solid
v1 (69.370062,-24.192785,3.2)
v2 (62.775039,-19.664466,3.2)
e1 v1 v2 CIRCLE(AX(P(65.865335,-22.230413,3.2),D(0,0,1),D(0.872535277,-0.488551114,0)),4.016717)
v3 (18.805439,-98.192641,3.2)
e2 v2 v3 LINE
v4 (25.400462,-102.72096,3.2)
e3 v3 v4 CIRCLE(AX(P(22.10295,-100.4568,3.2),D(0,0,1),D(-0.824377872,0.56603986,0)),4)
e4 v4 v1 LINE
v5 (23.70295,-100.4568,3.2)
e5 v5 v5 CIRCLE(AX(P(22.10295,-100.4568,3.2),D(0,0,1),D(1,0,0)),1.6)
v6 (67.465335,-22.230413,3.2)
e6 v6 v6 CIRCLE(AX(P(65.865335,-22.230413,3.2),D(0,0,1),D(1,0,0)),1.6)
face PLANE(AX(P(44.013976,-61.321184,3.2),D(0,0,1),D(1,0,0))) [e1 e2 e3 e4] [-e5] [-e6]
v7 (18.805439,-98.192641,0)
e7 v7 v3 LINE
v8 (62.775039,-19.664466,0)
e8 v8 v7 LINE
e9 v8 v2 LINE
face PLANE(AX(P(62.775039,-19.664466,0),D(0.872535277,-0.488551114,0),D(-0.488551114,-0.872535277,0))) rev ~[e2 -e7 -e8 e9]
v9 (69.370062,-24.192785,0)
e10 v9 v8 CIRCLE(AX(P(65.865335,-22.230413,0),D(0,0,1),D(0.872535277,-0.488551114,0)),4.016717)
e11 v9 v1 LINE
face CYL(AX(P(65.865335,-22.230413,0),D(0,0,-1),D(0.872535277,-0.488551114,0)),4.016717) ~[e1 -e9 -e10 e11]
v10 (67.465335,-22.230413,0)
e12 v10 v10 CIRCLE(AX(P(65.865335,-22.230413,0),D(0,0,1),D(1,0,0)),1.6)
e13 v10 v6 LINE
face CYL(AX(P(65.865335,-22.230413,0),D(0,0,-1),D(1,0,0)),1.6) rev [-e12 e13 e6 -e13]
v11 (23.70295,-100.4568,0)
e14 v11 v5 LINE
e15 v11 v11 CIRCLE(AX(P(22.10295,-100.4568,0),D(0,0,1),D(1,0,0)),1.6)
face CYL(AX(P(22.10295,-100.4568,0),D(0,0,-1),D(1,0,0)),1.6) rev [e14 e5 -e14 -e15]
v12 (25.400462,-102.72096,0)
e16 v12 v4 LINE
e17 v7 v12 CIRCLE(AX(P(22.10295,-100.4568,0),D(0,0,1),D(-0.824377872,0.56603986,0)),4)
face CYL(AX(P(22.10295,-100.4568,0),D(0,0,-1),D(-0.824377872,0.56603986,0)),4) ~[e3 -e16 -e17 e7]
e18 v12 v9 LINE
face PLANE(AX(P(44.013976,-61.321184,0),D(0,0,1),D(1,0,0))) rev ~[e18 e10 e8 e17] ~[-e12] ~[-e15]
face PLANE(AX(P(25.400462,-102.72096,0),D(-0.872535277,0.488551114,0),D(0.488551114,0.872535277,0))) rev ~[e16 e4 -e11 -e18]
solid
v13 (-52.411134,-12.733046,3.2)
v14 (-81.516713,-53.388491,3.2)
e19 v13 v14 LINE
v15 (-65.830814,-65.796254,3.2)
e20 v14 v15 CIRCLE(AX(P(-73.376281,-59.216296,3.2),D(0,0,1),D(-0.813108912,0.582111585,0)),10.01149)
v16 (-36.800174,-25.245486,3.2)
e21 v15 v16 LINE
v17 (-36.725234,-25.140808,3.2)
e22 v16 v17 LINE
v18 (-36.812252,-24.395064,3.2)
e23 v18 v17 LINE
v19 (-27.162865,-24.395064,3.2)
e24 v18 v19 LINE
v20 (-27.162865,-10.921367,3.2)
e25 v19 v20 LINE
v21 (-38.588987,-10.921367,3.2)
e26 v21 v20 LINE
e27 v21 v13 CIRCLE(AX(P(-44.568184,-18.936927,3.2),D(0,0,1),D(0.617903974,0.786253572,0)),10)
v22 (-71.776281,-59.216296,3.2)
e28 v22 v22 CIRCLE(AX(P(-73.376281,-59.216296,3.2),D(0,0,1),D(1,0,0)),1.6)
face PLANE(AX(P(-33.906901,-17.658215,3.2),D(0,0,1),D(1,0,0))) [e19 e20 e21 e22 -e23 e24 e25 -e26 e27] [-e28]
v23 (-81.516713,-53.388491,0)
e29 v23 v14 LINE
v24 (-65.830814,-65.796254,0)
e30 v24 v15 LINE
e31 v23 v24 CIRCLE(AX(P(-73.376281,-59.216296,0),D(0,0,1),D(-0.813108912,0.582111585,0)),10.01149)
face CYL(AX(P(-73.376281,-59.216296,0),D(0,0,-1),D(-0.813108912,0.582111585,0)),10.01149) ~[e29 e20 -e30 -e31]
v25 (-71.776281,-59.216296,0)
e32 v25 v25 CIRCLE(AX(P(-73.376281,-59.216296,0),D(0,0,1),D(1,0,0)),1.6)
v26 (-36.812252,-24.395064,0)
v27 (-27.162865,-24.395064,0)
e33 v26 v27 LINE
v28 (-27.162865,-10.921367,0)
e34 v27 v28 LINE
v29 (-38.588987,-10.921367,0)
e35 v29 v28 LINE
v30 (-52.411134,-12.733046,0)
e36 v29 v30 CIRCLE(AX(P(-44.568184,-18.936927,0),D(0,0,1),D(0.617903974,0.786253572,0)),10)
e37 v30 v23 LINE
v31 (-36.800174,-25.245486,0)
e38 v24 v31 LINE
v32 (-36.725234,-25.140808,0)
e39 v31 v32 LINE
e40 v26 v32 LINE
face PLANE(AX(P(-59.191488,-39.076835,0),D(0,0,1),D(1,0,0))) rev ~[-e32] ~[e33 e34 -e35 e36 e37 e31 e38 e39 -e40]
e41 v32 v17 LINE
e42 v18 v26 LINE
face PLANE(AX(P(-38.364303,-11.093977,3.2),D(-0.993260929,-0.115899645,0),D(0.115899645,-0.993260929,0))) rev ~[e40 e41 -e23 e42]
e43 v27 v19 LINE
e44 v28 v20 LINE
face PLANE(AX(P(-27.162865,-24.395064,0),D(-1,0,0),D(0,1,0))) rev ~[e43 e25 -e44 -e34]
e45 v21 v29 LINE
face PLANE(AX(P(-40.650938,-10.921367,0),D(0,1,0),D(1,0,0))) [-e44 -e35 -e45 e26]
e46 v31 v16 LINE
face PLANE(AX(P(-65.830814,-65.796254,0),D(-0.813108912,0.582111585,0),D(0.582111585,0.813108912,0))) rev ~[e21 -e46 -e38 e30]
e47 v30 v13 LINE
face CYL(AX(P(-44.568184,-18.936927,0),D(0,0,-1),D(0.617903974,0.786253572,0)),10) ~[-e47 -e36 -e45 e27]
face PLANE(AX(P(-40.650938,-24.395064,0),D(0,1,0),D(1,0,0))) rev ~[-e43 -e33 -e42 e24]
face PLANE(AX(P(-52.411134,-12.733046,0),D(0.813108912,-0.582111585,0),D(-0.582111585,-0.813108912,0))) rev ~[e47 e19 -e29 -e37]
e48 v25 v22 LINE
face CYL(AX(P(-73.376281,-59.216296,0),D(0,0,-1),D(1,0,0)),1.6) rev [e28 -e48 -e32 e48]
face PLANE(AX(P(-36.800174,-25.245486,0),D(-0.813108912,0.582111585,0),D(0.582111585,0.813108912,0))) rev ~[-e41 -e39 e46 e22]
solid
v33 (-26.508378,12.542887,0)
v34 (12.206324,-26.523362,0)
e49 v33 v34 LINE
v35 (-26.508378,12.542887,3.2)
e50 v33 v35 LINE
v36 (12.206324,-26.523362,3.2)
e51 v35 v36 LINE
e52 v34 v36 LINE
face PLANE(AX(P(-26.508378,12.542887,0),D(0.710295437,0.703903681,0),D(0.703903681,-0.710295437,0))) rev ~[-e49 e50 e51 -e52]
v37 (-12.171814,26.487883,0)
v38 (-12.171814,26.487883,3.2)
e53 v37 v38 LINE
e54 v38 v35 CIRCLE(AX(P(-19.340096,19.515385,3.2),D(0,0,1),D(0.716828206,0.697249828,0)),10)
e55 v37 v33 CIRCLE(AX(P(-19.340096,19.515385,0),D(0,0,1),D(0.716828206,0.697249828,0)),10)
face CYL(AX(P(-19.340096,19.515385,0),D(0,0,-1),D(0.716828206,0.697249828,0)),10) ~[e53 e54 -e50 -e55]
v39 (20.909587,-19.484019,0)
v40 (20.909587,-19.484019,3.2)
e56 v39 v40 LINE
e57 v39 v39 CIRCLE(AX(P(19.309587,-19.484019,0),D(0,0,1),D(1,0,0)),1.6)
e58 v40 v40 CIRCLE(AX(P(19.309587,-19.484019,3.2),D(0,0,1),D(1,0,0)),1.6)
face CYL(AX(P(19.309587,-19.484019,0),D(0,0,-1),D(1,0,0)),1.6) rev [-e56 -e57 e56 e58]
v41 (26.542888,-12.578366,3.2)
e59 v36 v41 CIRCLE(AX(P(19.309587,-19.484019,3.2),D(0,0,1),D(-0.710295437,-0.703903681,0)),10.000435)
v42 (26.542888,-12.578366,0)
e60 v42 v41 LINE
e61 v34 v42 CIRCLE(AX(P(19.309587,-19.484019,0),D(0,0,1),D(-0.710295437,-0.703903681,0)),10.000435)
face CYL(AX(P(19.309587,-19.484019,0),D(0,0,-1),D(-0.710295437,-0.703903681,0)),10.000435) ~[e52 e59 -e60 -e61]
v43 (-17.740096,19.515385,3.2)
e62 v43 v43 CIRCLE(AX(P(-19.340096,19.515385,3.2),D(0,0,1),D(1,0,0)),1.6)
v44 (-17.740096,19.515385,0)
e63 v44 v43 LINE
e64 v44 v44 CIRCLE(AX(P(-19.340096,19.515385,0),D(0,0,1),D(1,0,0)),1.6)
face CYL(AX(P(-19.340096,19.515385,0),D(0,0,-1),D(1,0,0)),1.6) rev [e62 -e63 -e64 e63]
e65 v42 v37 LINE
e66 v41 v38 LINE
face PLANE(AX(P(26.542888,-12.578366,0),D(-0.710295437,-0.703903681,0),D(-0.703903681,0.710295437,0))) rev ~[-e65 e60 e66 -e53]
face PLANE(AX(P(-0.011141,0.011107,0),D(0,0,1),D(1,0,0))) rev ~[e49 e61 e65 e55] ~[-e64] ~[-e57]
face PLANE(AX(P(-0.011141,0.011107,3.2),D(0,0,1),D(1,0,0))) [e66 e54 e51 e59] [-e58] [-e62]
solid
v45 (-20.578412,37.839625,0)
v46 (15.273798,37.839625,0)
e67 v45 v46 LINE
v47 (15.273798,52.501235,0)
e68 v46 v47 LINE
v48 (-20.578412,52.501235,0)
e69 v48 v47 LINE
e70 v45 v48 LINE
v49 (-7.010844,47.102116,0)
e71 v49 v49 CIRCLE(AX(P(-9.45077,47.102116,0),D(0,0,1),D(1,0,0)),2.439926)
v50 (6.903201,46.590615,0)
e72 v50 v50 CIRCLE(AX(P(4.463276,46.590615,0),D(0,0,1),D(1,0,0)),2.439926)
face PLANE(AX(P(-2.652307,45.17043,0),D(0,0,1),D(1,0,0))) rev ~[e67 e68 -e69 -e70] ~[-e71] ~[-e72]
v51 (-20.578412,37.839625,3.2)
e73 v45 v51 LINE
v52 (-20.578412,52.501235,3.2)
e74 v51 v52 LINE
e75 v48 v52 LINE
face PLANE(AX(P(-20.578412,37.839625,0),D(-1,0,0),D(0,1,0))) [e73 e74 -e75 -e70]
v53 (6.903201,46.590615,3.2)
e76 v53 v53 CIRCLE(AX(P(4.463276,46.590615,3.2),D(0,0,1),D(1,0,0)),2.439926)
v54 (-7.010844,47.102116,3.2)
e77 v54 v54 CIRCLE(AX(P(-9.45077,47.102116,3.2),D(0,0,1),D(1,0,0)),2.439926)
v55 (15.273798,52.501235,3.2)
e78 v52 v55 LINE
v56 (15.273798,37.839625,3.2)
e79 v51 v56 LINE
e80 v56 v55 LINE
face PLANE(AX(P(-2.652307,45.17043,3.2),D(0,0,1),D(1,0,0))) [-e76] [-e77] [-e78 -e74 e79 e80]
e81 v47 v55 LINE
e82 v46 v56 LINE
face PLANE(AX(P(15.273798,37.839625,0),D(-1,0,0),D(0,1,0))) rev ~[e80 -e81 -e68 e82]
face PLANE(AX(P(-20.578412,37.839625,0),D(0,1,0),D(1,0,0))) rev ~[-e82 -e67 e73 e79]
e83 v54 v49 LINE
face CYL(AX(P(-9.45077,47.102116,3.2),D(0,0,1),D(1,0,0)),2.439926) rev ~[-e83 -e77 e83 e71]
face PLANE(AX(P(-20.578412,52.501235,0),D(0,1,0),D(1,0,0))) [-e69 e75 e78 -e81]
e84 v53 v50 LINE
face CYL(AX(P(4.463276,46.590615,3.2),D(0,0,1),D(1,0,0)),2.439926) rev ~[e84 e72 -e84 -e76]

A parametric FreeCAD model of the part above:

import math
import FreeCAD as App
import Part
import Sketcher

V = App.Vector
Q = App.Units.Quantity

doc = App.newDocument("Part")
body = doc.addObject("PartDesign::Body", "Body")

# Sketch on XY plane
sketch1 = body.newObject("Sketcher::SketchObject", "Sketch")
sketch1.AttachmentSupport = (doc.getObject("XY_Plane"), [""])
sketch1.MapMode = "FlatFace"
sketch1.addGeometry([
    Part.LineSegment(V(-52.41, -12.73, 0), V(-81.52, -53.39, 0)),  # 0
    Part.ArcOfCircle(Part.Circle(V(-73.38, -59.22, 0), V(0, 0, 1), 10.01), math.radians(144), math.radians(319)),  # 1
    Part.LineSegment(V(-65.83, -65.8, 0), V(-36.8, -25.25, 0)),  # 2
    Part.LineSegment(V(-36.8, -25.25, 0), V(-36.73, -25.14, 0)),  # 3
    Part.ArcOfCircle(Part.Circle(V(-44.57, -18.94, 0), V(0, 0, 1), 10), math.radians(-38), math.radians(52)),  # 4
    Part.ArcOfCircle(Part.Circle(V(-44.57, -18.94, 0), V(0, 0, 1), 10), math.radians(52), math.radians(142)),  # 5
    Part.Circle(V(-73.38, -59.22, 0), V(0, 0, 1), 1.6),  # 6
], False)
sketch1.addConstraint([
    Sketcher.Constraint("Tangent", 0, 2, 1, 1),
    Sketcher.Constraint("Coincident", 1, 2, 2, 1),
    Sketcher.Constraint("Coincident", 2, 2, 3, 1),
    Sketcher.Constraint("Coincident", 3, 2, 4, 1),
    Sketcher.Constraint("Tangent", 4, 2, 5, 1),
    Sketcher.Constraint("Coincident", 5, 2, 0, 1),
    Sketcher.Constraint("Coincident", 6, 3, 1, 3),
    Sketcher.Constraint("Equal", 4, 5),
    Sketcher.Constraint("Parallel", 0, 2),
    Sketcher.Constraint("Parallel", 2, 3),
    Sketcher.Constraint("Radius", 4, Q("10 mm")),
    Sketcher.Constraint("Diameter", 6, Q("3.2 mm")),
    Sketcher.Constraint("Distance", 0, Q("50 mm")),
    Sketcher.Constraint("Radius", 1, Q("10.01149 mm")),
    Sketcher.Constraint("DistanceX", 0, 2, 1, 2, Q("15.685899 mm")),
    Sketcher.Constraint("DistanceX", 5, 2, 3, 2, Q("15.685899 mm")),
    Sketcher.Constraint("Distance", 2, Q("49.871262 mm")),
    Sketcher.Constraint("DistanceX", 1, 3, -1, 1, Q("73.376281 mm")),
    Sketcher.Constraint("DistanceY", 0, 2, -1, 1, Q("53.388491 mm")),
    Sketcher.Constraint("DistanceY", 4, 2, -1, 1, Q("11.074391 mm")),
    Sketcher.Constraint("DistanceY", 1, 3, 4, 3, Q("40.279369 mm")),
])
pad1 = body.newObject("PartDesign::Pad", "Pad")
pad1.Profile = sketch1
pad1.Length = 3.2

# Sketch on XY plane
sketch2 = body.newObject("Sketcher::SketchObject", "Sketch001")
sketch2.AttachmentSupport = (doc.getObject("XY_Plane"), [""])
sketch2.MapMode = "FlatFace"
sketch2.AttachmentOffset = App.Placement(V(0, 0, 3.2), App.Rotation())
sketch2.addGeometry([
    Part.BSplineCurve([V(-38.364303, -11.093977, 0), V(-36.591322, -11.806538, 0), V(-32.791358, -13.333744, 0), V(-29.388514, -22.755925, 0), V(-34.356465, -24.370813, 0), V(-36.725234, -25.140808, 0)], [4, 1, 1, 4], [0, 0.313954338, 0.6728864, 1], False, 3, [1, 1, 1, 1, 1, 1], False),
    Part.LineSegment(V(-38.364303, -11.093977, 0), V(-36.725234, -25.140808, 0)),
], False)
sketch2.addConstraint([
    Sketcher.Constraint("Block", 0),
    Sketcher.Constraint("Coincident", 0, 1, 1, 1),
    Sketcher.Constraint("Coincident", 1, 2, 0, 2),
])
pocket1 = body.newObject("PartDesign::Pocket", "Pocket")
pocket1.Profile = sketch2
pocket1.Length = 25

# Sketch on XY plane
sketch3 = body.newObject("Sketcher::SketchObject", "Sketch002")
sketch3.AttachmentSupport = (doc.getObject("XY_Plane"), [""])
sketch3.MapMode = "FlatFace"
sketch3.addGeometry([
    Part.LineSegment(V(-41, -11, 0), V(-41, -24, 0)),
    Part.LineSegment(V(-41, -24, 0), V(-27, -24, 0)),
    Part.LineSegment(V(-27, -24, 0), V(-27, -11, 0)),
    Part.LineSegment(V(-27, -11, 0), V(-41, -11, 0)),
], False)
sketch3.addConstraint([
    Sketcher.Constraint("Coincident", 0, 2, 1, 1),
    Sketcher.Constraint("Coincident", 1, 2, 2, 1),
    Sketcher.Constraint("Coincident", 2, 2, 3, 1),
    Sketcher.Constraint("Coincident", 3, 2, 0, 1),
    Sketcher.Constraint("Vertical", 0),
    Sketcher.Constraint("Horizontal", 1),
    Sketcher.Constraint("Vertical", 2),
    Sketcher.Constraint("Horizontal", 3),
    Sketcher.Constraint("DistanceX", 1, 1, 1, 2, Q("13.488073 mm")),
    Sketcher.Constraint("DistanceY", 0, 2, 0, 1, Q("13.473697 mm")),
    Sketcher.Constraint("DistanceX", 0, 2, -1, 1, Q("40.650938 mm")),
    Sketcher.Constraint("DistanceY", 0, 2, -1, 1, Q("24.395064 mm")),
])
pad2 = body.newObject("PartDesign::Pad", "Pad001")
pad2.Profile = sketch3
pad2.Length = 3.2
body2 = doc.addObject("PartDesign::Body", "Body001")

# Sketch on XY plane
sketch4 = body2.newObject("Sketcher::SketchObject", "Sketch003")
sketch4.AttachmentSupport = (doc.getObject("XY_Plane001"), [""])
sketch4.MapMode = "FlatFace"
sketch4.addGeometry([
    Part.LineSegment(V(25.4, -102.7, 0), V(69.4, -24.2, 0)),  # 0
    Part.ArcOfCircle(Part.Circle(V(65.9, -22.2, 0), V(0, 0, 1), 4), math.radians(-29), math.radians(140)),  # 1
    Part.LineSegment(V(62.8, -19.7, 0), V(18.8, -98.2, 0)),  # 2
    Part.ArcOfCircle(Part.Circle(V(22.1, -100.5, 0), V(0, 0, 1), 4), math.radians(146), math.radians(326)),  # 3
    Part.Circle(V(22.1, -100.5, 0), V(0, 0, 1), 1.6),  # 4
    Part.Circle(V(65.9, -22.2, 0), V(0, 0, 1), 1.6),  # 5
], False)
sketch4.addConstraint([
    Sketcher.Constraint("Tangent", 0, 2, 1, 1),
    Sketcher.Constraint("Coincident", 1, 2, 2, 1),
    Sketcher.Constraint("Coincident", 2, 2, 3, 1),
    Sketcher.Constraint("Coincident", 3, 2, 0, 1),
    Sketcher.Constraint("Coincident", 4, 3, 3, 3),
    Sketcher.Constraint("Coincident", 5, 3, 1, 3),
    Sketcher.Constraint("Equal", 4, 5),
    Sketcher.Constraint("Parallel", 0, 2),
    Sketcher.Constraint("Equal", 0, 2),
    Sketcher.Constraint("Radius", 3, Q("4 mm")),
    Sketcher.Constraint("Diameter", 4, Q("3.2 mm")),
    Sketcher.Constraint("Distance", 0, Q("90 mm")),
    Sketcher.Constraint("Radius", 1, Q("4.016717 mm")),
    Sketcher.Constraint("DistanceY", 3, 3, -1, 1, Q("100.4568 mm")),
    Sketcher.Constraint("DistanceX", 3, 2, 0, 2, Q("43.9696 mm")),
    Sketcher.Constraint("DistanceX", -1, 1, 3, 3, Q("22.10295 mm")),
    Sketcher.Constraint("DistanceX", -1, 1, 1, 2, Q("62.775039 mm")),
])
pad3 = body2.newObject("PartDesign::Pad", "Pad002")
pad3.Profile = sketch4
pad3.Length = 3.2
body3 = doc.addObject("PartDesign::Body", "Body002")

# Sketch on XY plane
sketch5 = body3.newObject("Sketcher::SketchObject", "Sketch004")
sketch5.AttachmentSupport = (doc.getObject("XY_Plane002"), [""])
sketch5.MapMode = "FlatFace"
sketch5.addGeometry([
    Part.LineSegment(V(-21, 53, 0), V(-21, 38, 0)),
    Part.LineSegment(V(-21, 38, 0), V(15, 38, 0)),
    Part.LineSegment(V(15, 38, 0), V(15, 53, 0)),
    Part.LineSegment(V(15, 53, 0), V(-21, 53, 0)),
], False)
sketch5.addConstraint([
    Sketcher.Constraint("Coincident", 0, 2, 1, 1),
    Sketcher.Constraint("Coincident", 1, 2, 2, 1),
    Sketcher.Constraint("Coincident", 2, 2, 3, 1),
    Sketcher.Constraint("Coincident", 3, 2, 0, 1),
    Sketcher.Constraint("Vertical", 0),
    Sketcher.Constraint("Horizontal", 1),
    Sketcher.Constraint("Vertical", 2),
    Sketcher.Constraint("Horizontal", 3),
    Sketcher.Constraint("DistanceX", 1, 1, 1, 2, Q("35.852211 mm")),
    Sketcher.Constraint("DistanceY", 0, 2, 0, 1, Q("14.66161 mm")),
    Sketcher.Constraint("DistanceX", -1, 1, 1, 2, Q("15.273798 mm")),
    Sketcher.Constraint("DistanceY", -1, 1, 0, 2, Q("37.839625 mm")),
])
pad4 = body3.newObject("PartDesign::Pad", "Pad003")
pad4.Profile = sketch5
pad4.Length = 3.2

# Sketch on XY plane
sketch6 = body3.newObject("Sketcher::SketchObject", "Sketch005")
sketch6.AttachmentSupport = (doc.getObject("XY_Plane002"), [""])
sketch6.MapMode = "FlatFace"
sketch6.AttachmentOffset = App.Placement(V(0, 0, 3.2), App.Rotation())
sketch6.addGeometry(Part.Circle(V(-9.5, 47.1, 0), V(0, 0, 1), 2.4), False)
sketch6.addConstraint([
    Sketcher.Constraint("Diameter", 0, Q("4.879851 mm")),
    Sketcher.Constraint("DistanceX", 0, 3, -1, 1, Q("9.45077 mm")),
    Sketcher.Constraint("DistanceY", -1, 1, 0, 3, Q("47.102116 mm")),
])
pocket2 = body3.newObject("PartDesign::Pocket", "Pocket001")
pocket2.Profile = sketch6
pocket2.Length = 25

# Sketch on XY plane
sketch7 = body3.newObject("Sketcher::SketchObject", "Sketch006")
sketch7.AttachmentSupport = (doc.getObject("XY_Plane002"), [""])
sketch7.MapMode = "FlatFace"
sketch7.AttachmentOffset = App.Placement(V(0, 0, 3.2), App.Rotation())
sketch7.addGeometry(Part.Circle(V(4.5, 46.6, 0), V(0, 0, 1), 2.4), False)
sketch7.addConstraint([
    Sketcher.Constraint("Diameter", 0, Q("4.879851 mm")),
    Sketcher.Constraint("DistanceX", -1, 1, 0, 3, Q("4.463276 mm")),
    Sketcher.Constraint("DistanceY", -1, 1, 0, 3, Q("46.590615 mm")),
])
pocket3 = body3.newObject("PartDesign::Pocket", "Pocket002")
pocket3.Profile = sketch7
pocket3.Length = 3.2
body4 = doc.addObject("PartDesign::Body", "Body003")

# Sketch on XY plane
sketch8 = body4.newObject("Sketcher::SketchObject", "Sketch007")
sketch8.AttachmentSupport = (doc.getObject("XY_Plane003"), [""])
sketch8.MapMode = "FlatFace"
sketch8.addGeometry([
    Part.LineSegment(V(-26.508378, 12.542887, 0), V(12.206324, -26.523362, 0)),  # 0
    Part.ArcOfCircle(Part.Circle(V(19.309587, -19.484019, 0), V(0, 0, 1), 10.000435), math.radians(-135.258958), math.radians(43.672501)),  # 1
    Part.LineSegment(V(26.542888, -12.578366, 0), V(-12.171814, 26.487883, 0)),  # 2
    Part.ArcOfCircle(Part.Circle(V(-19.340096, 19.515385, 0), V(0, 0, 1), 10), math.radians(44.206772), math.radians(224.206772)),  # 3
    Part.Circle(V(19.309587, -19.484019, 0), V(0, 0, 1), 1.6),  # 4
    Part.Circle(V(-19.340096, 19.515385, 0), V(0, 0, 1), 1.6),  # 5
], False)
sketch8.addConstraint([
    Sketcher.Constraint("Coincident", 0, 2, 1, 1),
    Sketcher.Constraint("Coincident", 1, 2, 2, 1),
    Sketcher.Constraint("Coincident", 2, 2, 3, 1),
    Sketcher.Constraint("Coincident", 3, 2, 0, 1),
    Sketcher.Constraint("Coincident", 4, 3, 1, 3),
    Sketcher.Constraint("Coincident", 5, 3, 3, 3),
    Sketcher.Constraint("Radius", 3, Q("10 mm")),
    Sketcher.Constraint("Diameter", 4, Q("3.2 mm")),
    Sketcher.Constraint("Diameter", 5, Q("3.2 mm")),
    Sketcher.Constraint("Distance", 0, Q("55 mm")),
    Sketcher.Constraint("Distance", 2, Q("55 mm")),
    Sketcher.Constraint("Radius", 1, Q("10.000435 mm")),
    Sketcher.Constraint("DistanceX", 1, 3, 1, 2, Q("7.233301 mm")),
    Sketcher.Constraint("DistanceY", 3, 3, 2, 2, Q("6.972498 mm")),
    Sketcher.Constraint("DistanceX", 2, 2, 1, 3, Q("31.481402 mm")),
    Sketcher.Constraint("DistanceY", 3, 2, 3, 3, Q("6.972498 mm")),
    Sketcher.Constraint("DistanceY", 1, 3, -1, 1, Q("19.484019 mm")),
    Sketcher.Constraint("DistanceX", -1, 1, 1, 2, Q("26.542888 mm")),
])
pad5 = body4.newObject("PartDesign::Pad", "Pad004")
pad5.Profile = sketch8
pad5.Length = 3.2

doc.recompute()
